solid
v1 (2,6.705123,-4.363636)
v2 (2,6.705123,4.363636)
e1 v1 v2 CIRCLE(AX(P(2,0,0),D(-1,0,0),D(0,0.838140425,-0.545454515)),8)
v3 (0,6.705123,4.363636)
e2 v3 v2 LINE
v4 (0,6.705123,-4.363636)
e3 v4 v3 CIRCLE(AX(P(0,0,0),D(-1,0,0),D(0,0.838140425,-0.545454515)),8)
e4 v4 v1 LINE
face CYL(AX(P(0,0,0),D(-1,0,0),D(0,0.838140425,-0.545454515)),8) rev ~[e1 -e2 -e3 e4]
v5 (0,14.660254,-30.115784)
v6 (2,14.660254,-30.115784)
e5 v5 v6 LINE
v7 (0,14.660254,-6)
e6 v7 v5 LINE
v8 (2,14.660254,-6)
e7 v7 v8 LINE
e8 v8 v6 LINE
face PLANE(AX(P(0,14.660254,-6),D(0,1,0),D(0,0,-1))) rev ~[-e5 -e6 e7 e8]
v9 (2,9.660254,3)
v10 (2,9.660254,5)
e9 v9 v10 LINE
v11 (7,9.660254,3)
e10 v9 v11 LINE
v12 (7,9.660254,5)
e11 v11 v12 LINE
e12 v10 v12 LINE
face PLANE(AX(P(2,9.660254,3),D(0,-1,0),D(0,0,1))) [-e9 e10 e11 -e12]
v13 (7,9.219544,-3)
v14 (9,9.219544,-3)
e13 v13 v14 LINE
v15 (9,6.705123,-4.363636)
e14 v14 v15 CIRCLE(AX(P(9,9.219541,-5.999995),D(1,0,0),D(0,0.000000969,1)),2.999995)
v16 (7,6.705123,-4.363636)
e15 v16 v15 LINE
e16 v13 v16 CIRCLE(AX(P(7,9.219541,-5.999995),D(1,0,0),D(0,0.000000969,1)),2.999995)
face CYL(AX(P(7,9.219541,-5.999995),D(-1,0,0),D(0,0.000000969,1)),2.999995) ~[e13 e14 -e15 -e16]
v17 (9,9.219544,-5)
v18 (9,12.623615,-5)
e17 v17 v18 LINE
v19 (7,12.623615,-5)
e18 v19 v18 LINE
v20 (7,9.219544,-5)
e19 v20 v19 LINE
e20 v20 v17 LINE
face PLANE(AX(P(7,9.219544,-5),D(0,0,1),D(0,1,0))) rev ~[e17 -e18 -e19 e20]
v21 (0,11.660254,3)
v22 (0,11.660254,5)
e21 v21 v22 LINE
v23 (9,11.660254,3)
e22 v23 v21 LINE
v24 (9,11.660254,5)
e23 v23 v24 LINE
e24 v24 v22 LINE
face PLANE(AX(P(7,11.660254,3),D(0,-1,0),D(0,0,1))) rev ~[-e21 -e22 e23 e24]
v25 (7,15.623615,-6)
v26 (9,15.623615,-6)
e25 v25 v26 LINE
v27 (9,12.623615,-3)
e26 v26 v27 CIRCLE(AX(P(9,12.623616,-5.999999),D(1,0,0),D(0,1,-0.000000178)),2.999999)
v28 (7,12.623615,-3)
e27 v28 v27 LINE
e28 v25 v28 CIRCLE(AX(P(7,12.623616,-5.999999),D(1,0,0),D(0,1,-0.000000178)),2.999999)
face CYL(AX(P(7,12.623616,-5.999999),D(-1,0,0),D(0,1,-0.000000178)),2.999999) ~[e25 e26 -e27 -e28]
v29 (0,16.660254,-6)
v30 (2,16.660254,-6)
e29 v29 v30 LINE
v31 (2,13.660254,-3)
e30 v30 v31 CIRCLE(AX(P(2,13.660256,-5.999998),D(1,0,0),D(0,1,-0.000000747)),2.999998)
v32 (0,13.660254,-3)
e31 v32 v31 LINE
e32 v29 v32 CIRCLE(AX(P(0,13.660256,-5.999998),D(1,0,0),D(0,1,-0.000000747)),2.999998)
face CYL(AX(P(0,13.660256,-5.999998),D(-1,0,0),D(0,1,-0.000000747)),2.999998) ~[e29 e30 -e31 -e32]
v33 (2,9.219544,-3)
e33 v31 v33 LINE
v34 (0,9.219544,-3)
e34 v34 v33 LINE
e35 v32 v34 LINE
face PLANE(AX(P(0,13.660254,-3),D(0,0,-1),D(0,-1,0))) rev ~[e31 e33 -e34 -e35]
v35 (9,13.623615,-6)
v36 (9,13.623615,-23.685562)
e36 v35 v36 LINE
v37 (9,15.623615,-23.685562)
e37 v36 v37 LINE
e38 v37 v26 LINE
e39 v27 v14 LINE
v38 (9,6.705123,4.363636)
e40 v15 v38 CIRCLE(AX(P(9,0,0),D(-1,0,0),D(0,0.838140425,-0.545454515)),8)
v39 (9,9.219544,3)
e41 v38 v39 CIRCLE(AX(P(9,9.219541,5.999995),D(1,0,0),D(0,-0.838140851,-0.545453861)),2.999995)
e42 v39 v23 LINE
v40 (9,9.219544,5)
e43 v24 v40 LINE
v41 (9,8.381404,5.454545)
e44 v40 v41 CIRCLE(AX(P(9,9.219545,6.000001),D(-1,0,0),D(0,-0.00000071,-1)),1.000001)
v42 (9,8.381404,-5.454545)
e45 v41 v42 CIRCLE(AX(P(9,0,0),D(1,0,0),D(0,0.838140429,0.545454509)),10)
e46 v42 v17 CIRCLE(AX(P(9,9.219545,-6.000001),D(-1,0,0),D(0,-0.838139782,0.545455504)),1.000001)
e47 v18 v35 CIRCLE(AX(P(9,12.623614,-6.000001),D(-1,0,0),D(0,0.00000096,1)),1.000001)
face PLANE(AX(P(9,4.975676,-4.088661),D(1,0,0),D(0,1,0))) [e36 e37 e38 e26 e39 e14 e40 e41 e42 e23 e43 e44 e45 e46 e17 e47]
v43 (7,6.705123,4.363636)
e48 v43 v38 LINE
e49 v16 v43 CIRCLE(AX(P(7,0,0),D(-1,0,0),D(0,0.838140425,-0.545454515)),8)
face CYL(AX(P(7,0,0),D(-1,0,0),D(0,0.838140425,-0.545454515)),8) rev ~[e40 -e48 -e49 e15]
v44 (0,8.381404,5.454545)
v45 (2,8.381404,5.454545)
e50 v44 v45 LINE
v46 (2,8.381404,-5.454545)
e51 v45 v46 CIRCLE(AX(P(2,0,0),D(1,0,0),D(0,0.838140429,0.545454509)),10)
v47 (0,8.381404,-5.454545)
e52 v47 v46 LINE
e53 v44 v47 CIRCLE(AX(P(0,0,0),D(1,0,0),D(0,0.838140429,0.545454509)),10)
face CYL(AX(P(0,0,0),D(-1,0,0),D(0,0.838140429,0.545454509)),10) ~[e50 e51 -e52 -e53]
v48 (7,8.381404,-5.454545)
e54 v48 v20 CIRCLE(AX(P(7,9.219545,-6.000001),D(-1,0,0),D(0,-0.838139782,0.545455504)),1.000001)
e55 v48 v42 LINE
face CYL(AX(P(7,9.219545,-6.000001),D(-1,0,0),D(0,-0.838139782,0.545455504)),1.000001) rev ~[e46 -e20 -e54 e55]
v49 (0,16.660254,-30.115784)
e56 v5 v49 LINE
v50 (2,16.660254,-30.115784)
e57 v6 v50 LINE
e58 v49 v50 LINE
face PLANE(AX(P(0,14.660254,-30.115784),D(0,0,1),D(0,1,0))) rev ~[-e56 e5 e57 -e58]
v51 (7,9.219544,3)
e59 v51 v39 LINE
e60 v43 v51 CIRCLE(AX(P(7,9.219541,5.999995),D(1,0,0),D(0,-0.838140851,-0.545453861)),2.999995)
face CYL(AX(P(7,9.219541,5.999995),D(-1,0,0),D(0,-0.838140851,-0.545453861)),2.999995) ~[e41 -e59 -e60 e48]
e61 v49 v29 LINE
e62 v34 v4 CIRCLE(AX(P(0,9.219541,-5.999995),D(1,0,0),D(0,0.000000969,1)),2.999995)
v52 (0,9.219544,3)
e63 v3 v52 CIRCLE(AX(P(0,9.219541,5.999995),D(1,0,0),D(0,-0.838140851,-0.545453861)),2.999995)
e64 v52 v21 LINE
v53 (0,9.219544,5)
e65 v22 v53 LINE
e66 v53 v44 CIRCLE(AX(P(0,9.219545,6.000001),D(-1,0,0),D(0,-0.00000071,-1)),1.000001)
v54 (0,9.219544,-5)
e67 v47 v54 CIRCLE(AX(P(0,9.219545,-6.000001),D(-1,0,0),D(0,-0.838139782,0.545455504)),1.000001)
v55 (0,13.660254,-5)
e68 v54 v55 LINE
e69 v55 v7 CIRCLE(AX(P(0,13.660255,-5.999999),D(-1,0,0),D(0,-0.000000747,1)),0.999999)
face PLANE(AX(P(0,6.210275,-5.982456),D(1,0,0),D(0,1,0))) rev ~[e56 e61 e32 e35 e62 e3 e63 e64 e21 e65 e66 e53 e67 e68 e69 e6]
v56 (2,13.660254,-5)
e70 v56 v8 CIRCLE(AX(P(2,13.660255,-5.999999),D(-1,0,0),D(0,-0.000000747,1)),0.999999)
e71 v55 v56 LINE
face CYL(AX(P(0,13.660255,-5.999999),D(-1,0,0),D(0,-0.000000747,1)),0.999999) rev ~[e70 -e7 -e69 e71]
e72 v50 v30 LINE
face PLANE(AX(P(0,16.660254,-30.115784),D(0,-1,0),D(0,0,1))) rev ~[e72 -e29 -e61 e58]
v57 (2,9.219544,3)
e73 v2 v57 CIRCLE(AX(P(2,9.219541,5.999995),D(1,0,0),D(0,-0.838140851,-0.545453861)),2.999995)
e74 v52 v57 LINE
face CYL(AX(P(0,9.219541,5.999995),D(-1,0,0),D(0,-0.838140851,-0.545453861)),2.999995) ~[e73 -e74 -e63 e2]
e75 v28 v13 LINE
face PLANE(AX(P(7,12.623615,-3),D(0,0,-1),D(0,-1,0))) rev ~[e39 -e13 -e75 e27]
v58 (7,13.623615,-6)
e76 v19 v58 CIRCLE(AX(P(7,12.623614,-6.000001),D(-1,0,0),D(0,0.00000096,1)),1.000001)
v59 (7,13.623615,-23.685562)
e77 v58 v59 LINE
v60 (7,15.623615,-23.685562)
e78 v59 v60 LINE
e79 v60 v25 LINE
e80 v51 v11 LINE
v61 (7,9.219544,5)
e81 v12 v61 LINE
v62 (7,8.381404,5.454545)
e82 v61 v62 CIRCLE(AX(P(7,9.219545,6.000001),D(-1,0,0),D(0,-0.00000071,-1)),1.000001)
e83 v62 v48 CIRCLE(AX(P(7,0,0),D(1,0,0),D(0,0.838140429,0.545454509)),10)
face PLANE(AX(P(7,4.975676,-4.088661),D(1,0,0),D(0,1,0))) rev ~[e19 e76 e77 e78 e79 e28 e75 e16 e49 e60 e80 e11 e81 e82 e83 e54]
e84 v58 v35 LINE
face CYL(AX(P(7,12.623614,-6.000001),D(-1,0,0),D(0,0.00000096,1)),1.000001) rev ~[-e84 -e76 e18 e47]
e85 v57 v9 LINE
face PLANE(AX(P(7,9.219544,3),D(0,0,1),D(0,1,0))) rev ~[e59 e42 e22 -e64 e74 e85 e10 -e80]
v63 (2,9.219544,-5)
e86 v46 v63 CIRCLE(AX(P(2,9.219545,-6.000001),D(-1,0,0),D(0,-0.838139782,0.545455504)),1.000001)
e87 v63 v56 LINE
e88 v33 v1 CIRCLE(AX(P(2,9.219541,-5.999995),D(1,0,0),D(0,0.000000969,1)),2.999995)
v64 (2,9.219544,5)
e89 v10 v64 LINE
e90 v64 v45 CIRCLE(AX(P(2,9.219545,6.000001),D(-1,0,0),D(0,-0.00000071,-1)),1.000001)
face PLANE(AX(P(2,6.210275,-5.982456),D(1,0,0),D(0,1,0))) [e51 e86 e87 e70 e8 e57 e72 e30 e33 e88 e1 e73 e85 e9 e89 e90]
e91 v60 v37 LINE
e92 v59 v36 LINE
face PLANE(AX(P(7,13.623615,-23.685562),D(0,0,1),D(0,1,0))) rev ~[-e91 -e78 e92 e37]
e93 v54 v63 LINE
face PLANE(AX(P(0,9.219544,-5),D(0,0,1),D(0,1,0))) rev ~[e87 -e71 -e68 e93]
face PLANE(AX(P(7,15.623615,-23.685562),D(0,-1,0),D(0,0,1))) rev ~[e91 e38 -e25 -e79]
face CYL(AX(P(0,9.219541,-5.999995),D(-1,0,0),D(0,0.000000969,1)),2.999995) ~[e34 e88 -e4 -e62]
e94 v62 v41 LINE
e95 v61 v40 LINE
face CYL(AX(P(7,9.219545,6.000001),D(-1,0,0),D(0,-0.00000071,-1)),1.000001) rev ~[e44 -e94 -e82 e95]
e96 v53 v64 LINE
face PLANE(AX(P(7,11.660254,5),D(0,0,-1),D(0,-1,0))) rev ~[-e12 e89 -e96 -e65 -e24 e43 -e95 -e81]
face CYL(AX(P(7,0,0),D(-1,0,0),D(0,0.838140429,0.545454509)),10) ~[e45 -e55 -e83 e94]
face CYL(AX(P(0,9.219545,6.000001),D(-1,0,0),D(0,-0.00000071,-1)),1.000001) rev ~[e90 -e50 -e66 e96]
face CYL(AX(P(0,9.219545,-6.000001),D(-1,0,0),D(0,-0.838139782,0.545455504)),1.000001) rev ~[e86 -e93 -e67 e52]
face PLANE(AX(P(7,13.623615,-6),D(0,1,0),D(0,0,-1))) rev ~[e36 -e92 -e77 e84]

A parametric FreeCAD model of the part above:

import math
import FreeCAD as App
import Part
import Sketcher

V = App.Vector
Q = App.Units.Quantity

doc = App.newDocument("Part")
body = doc.addObject("PartDesign::Body", "Body")

sketch1 = doc.addObject("Sketcher::SketchObject", "Sketch")
body.addObject(sketch1)
sketch1.AttachmentSupport = (doc.YZ_Plane, [""])
sketch1.MapMode = "FlatFace"
sketch1.addGeometry(Part.ArcOfCircle(Part.Circle(V(9.2, 6, 0), V(0, 0, 1), 1), math.radians(-147), math.radians(-90)), False)
sketch1.addGeometry(Part.ArcOfCircle(Part.Circle(V(0, 0, 0), V(0, 0, 1), 10), math.radians(33), math.radians(327)), False)
sketch1.addGeometry(Part.ArcOfCircle(Part.Circle(V(9.2, -6, 0), V(0, 0, 1), 1), math.radians(90), math.radians(147)), False)
sketch1.addGeometry(Part.LineSegment(V(9.2, -5, 0), V(13.7, -5, 0)), False)
sketch1.addGeometry(Part.ArcOfCircle(Part.Circle(V(13.7, -6, 0), V(0, 0, 1), 1), math.radians(0), math.radians(90)), False)
sketch1.addGeometry(Part.LineSegment(V(14.7, -6, 0), V(14.7, -30.1, 0)), False)
sketch1.addGeometry(Part.LineSegment(V(14.7, -30.1, 0), V(16.7, -30.1, 0)), False)
sketch1.addGeometry(Part.LineSegment(V(16.7, -30.1, 0), V(16.7, -6, 0)), False)
sketch1.addGeometry(Part.ArcOfCircle(Part.Circle(V(13.7, -6, 0), V(0, 0, 1), 3), math.radians(0), math.radians(90)), False)
sketch1.addGeometry(Part.LineSegment(V(13.7, -3, 0), V(9.2, -3, 0)), False)
sketch1.addGeometry(Part.ArcOfCircle(Part.Circle(V(9.2, -6, 0), V(0, 0, 1), 3), math.radians(90), math.radians(147)), False)
sketch1.addGeometry(Part.ArcOfCircle(Part.Circle(V(0, 0, 0), V(0, 0, 1), 8), math.radians(33), math.radians(327)), False)
sketch1.addGeometry(Part.ArcOfCircle(Part.Circle(V(9.2, 6, 0), V(0, 0, 1), 3), math.radians(-147), math.radians(-90)), False)
sketch1.addGeometry(Part.LineSegment(V(9.2, 3, 0), V(11.7, 3, 0)), False)
sketch1.addGeometry(Part.LineSegment(V(11.7, 3, 0), V(11.7, 5, 0)), False)
sketch1.addGeometry(Part.LineSegment(V(11.7, 5, 0), V(9.2, 5, 0)), False)
sketch1.addConstraint(Sketcher.Constraint("Tangent", 0, 1, 1, 1))
sketch1.addConstraint(Sketcher.Constraint("Tangent", 1, 2, 2, 2))
sketch1.addConstraint(Sketcher.Constraint("Tangent", 2, 1, 3, 1))
sketch1.addConstraint(Sketcher.Constraint("Tangent", 3, 2, 4, 2))
sketch1.addConstraint(Sketcher.Constraint("Tangent", 4, 1, 5, 1))
sketch1.addConstraint(Sketcher.Constraint("Coincident", 5, 2, 6, 1))
sketch1.addConstraint(Sketcher.Constraint("Coincident", 6, 2, 7, 1))
sketch1.addConstraint(Sketcher.Constraint("Tangent", 7, 2, 8, 1))
sketch1.addConstraint(Sketcher.Constraint("Tangent", 8, 2, 9, 1))
sketch1.addConstraint(Sketcher.Constraint("Tangent", 9, 2, 10, 1))
sketch1.addConstraint(Sketcher.Constraint("Tangent", 10, 2, 11, 2))
sketch1.addConstraint(Sketcher.Constraint("Tangent", 11, 1, 12, 1))
sketch1.addConstraint(Sketcher.Constraint("Tangent", 12, 2, 13, 1))
sketch1.addConstraint(Sketcher.Constraint("Coincident", 13, 2, 14, 1))
sketch1.addConstraint(Sketcher.Constraint("Coincident", 14, 2, 15, 1))
sketch1.addConstraint(Sketcher.Constraint("Tangent", 15, 2, 0, 2))
sketch1.addConstraint(Sketcher.Constraint("Horizontal", 3))
sketch1.addConstraint(Sketcher.Constraint("Vertical", 5))
sketch1.addConstraint(Sketcher.Constraint("Horizontal", 6))
sketch1.addConstraint(Sketcher.Constraint("Vertical", 7))
sketch1.addConstraint(Sketcher.Constraint("Horizontal", 9))
sketch1.addConstraint(Sketcher.Constraint("Horizontal", 13))
sketch1.addConstraint(Sketcher.Constraint("Vertical", 14))
sketch1.addConstraint(Sketcher.Constraint("Horizontal", 15))
sketch1.addConstraint(Sketcher.Constraint("Coincident", 1, 3, -1, 1))
sketch1.addConstraint(Sketcher.Constraint("Coincident", 11, 3, -1, 1))
sketch1.addConstraint(Sketcher.Constraint("Coincident", 8, 3, 4, 3))
sketch1.addConstraint(Sketcher.Constraint("Coincident", 10, 3, 2, 3))
sketch1.addConstraint(Sketcher.Constraint("Coincident", 12, 3, 0, 3))
sketch1.addConstraint(Sketcher.Constraint("Equal", 0, 2))
sketch1.addConstraint(Sketcher.Constraint("Equal", 2, 4))
sketch1.addConstraint(Sketcher.Constraint("Vertical", 0, 3, 2, 3))
sketch1.addConstraint(Sketcher.Constraint("Radius", 0, Q("1.000001 mm")))
sketch1.addConstraint(Sketcher.Constraint("Radius", 1, Q("10 mm")))
sketch1.addConstraint(Sketcher.Constraint("Radius", 11, Q("8 mm")))
sketch1.addConstraint(Sketcher.Constraint("DistanceY", -1, 1, 0, 3, Q("6.000001 mm")))
sketch1.addConstraint(Sketcher.Constraint("DistanceX", 3, 1, 3, 2, Q("4.44071 mm")))
sketch1.addConstraint(Sketcher.Constraint("DistanceX", 13, 1, 13, 2, Q("2.44071 mm")))
sketch1.addConstraint(Sketcher.Constraint("DistanceY", 5, 2, 5, 1, Q("24.115784 mm")))
pad1 = doc.addObject("PartDesign::Pad", "Pad")
body.addObject(pad1)
pad1.Profile = sketch1
pad1.Length = 2

sketch2 = doc.addObject("Sketcher::SketchObject", "Sketch001")
body.addObject(sketch2)
sketch2.AttachmentSupport = (doc.YZ_Plane, [""])
sketch2.MapMode = "FlatFace"
sketch2.AttachmentOffset = App.Placement(V(0, 0, 2), App.Rotation())
sketch2.addGeometry(Part.LineSegment(V(9.7, 5, 0), V(9.7, 3, 0)), False)
sketch2.addGeometry(Part.LineSegment(V(9.7, 3, 0), V(11.7, 3, 0)), False)
sketch2.addGeometry(Part.LineSegment(V(11.7, 3, 0), V(11.7, 5, 0)), False)
sketch2.addGeometry(Part.LineSegment(V(11.7, 5, 0), V(9.7, 5, 0)), False)
sketch2.addConstraint(Sketcher.Constraint("Coincident", 0, 2, 1, 1))
sketch2.addConstraint(Sketcher.Constraint("Coincident", 1, 2, 2, 1))
sketch2.addConstraint(Sketcher.Constraint("Coincident", 2, 2, 3, 1))
sketch2.addConstraint(Sketcher.Constraint("Coincident", 3, 2, 0, 1))
sketch2.addConstraint(Sketcher.Constraint("Vertical", 0))
sketch2.addConstraint(Sketcher.Constraint("Horizontal", 1))
sketch2.addConstraint(Sketcher.Constraint("Vertical", 2))
sketch2.addConstraint(Sketcher.Constraint("Horizontal", 3))
sketch2.addConstraint(Sketcher.Constraint("Equal", 3, 0))
sketch2.addConstraint(Sketcher.Constraint("DistanceX", 1, 1, 1, 2, Q("2 mm")))
sketch2.addConstraint(Sketcher.Constraint("DistanceY", -1, 1, 0, 2, Q("3 mm")))
sketch2.addConstraint(Sketcher.Constraint("DistanceX", -1, 1, 0, 2, Q("9.660254 mm")))
pad2 = doc.addObject("PartDesign::Pad", "Pad001")
body.addObject(pad2)
pad2.Profile = sketch2
pad2.Length = 5

sketch3 = doc.addObject("Sketcher::SketchObject", "Sketch002")
body.addObject(sketch3)
sketch3.AttachmentSupport = (doc.YZ_Plane, [""])
sketch3.MapMode = "FlatFace"
sketch3.AttachmentOffset = App.Placement(V(0, 0, 7), App.Rotation())
sketch3.addGeometry(Part.ArcOfCircle(Part.Circle(V(9.2, 6, 0), V(0, 0, 1), 1), math.radians(-147), math.radians(-90)), False)
sketch3.addGeometry(Part.ArcOfCircle(Part.Circle(V(0, 0, 0), V(0, 0, 1), 10), math.radians(33), math.radians(327)), False)
sketch3.addGeometry(Part.ArcOfCircle(Part.Circle(V(9.2, -6, 0), V(0, 0, 1), 1), math.radians(90), math.radians(147)), False)
sketch3.addGeometry(Part.LineSegment(V(9.2, -5, 0), V(12.6, -5, 0)), False)
sketch3.addGeometry(Part.ArcOfCircle(Part.Circle(V(12.6, -6, 0), V(0, 0, 1), 1), math.radians(0), math.radians(90)), False)
sketch3.addGeometry(Part.LineSegment(V(13.6, -6, 0), V(13.6, -23.7, 0)), False)
sketch3.addGeometry(Part.LineSegment(V(13.6, -23.7, 0), V(15.6, -23.7, 0)), False)
sketch3.addGeometry(Part.LineSegment(V(15.6, -23.7, 0), V(15.6, -6, 0)), False)
sketch3.addGeometry(Part.ArcOfCircle(Part.Circle(V(12.6, -6, 0), V(0, 0, 1), 3), math.radians(0), math.radians(90)), False)
sketch3.addGeometry(Part.LineSegment(V(12.6, -3, 0), V(9.2, -3, 0)), False)
sketch3.addGeometry(Part.ArcOfCircle(Part.Circle(V(9.2, -6, 0), V(0, 0, 1), 3), math.radians(90), math.radians(147)), False)
sketch3.addGeometry(Part.ArcOfCircle(Part.Circle(V(0, 0, 0), V(0, 0, 1), 8), math.radians(33), math.radians(327)), False)
sketch3.addGeometry(Part.ArcOfCircle(Part.Circle(V(9.2, 6, 0), V(0, 0, 1), 3), math.radians(-147), math.radians(-90)), False)
sketch3.addGeometry(Part.LineSegment(V(9.2, 3, 0), V(11.7, 3, 0)), False)
sketch3.addGeometry(Part.LineSegment(V(11.7, 3, 0), V(11.7, 5, 0)), False)
sketch3.addGeometry(Part.LineSegment(V(11.7, 5, 0), V(9.2, 5, 0)), False)
sketch3.addConstraint(Sketcher.Constraint("Tangent", 0, 1, 1, 1))
sketch3.addConstraint(Sketcher.Constraint("Tangent", 1, 2, 2, 2))
sketch3.addConstraint(Sketcher.Constraint("Tangent", 2, 1, 3, 1))
sketch3.addConstraint(Sketcher.Constraint("Tangent", 3, 2, 4, 2))
sketch3.addConstraint(Sketcher.Constraint("Tangent", 4, 1, 5, 1))
sketch3.addConstraint(Sketcher.Constraint("Coincident", 5, 2, 6, 1))
sketch3.addConstraint(Sketcher.Constraint("Coincident", 6, 2, 7, 1))
sketch3.addConstraint(Sketcher.Constraint("Tangent", 7, 2, 8, 1))
sketch3.addConstraint(Sketcher.Constraint("Tangent", 8, 2, 9, 1))
sketch3.addConstraint(Sketcher.Constraint("Tangent", 9, 2, 10, 1))
sketch3.addConstraint(Sketcher.Constraint("Tangent", 10, 2, 11, 2))
sketch3.addConstraint(Sketcher.Constraint("Tangent", 11, 1, 12, 1))
sketch3.addConstraint(Sketcher.Constraint("Tangent", 12, 2, 13, 1))
sketch3.addConstraint(Sketcher.Constraint("Coincident", 13, 2, 14, 1))
sketch3.addConstraint(Sketcher.Constraint("Coincident", 14, 2, 15, 1))
sketch3.addConstraint(Sketcher.Constraint("Tangent", 15, 2, 0, 2))
sketch3.addConstraint(Sketcher.Constraint("Horizontal", 3))
sketch3.addConstraint(Sketcher.Constraint("Vertical", 5))
sketch3.addConstraint(Sketcher.Constraint("Horizontal", 6))
sketch3.addConstraint(Sketcher.Constraint("Vertical", 7))
sketch3.addConstraint(Sketcher.Constraint("Horizontal", 9))
sketch3.addConstraint(Sketcher.Constraint("Horizontal", 13))
sketch3.addConstraint(Sketcher.Constraint("Vertical", 14))
sketch3.addConstraint(Sketcher.Constraint("Horizontal", 15))
sketch3.addConstraint(Sketcher.Constraint("Coincident", 1, 3, -1, 1))
sketch3.addConstraint(Sketcher.Constraint("Coincident", 11, 3, -1, 1))
sketch3.addConstraint(Sketcher.Constraint("Coincident", 8, 3, 4, 3))
sketch3.addConstraint(Sketcher.Constraint("Coincident", 10, 3, 2, 3))
sketch3.addConstraint(Sketcher.Constraint("Coincident", 12, 3, 0, 3))
sketch3.addConstraint(Sketcher.Constraint("Equal", 0, 2))
sketch3.addConstraint(Sketcher.Constraint("Equal", 2, 4))
sketch3.addConstraint(Sketcher.Constraint("Vertical", 0, 3, 2, 3))
sketch3.addConstraint(Sketcher.Constraint("Radius", 0, Q("1.000001 mm")))
sketch3.addConstraint(Sketcher.Constraint("Radius", 1, Q("10 mm")))
sketch3.addConstraint(Sketcher.Constraint("Radius", 8, Q("2.999999 mm")))
sketch3.addConstraint(Sketcher.Constraint("DistanceY", -1, 1, 0, 3, Q("6.000001 mm")))
sketch3.addConstraint(Sketcher.Constraint("DistanceX", 3, 1, 3, 2, Q("3.404071 mm")))
sketch3.addConstraint(Sketcher.Constraint("DistanceX", 13, 1, 13, 2, Q("2.44071 mm")))
sketch3.addConstraint(Sketcher.Constraint("DistanceY", 5, 2, 5, 1, Q("17.685562 mm")))
pad3 = doc.addObject("PartDesign::Pad", "Pad002")
body.addObject(pad3)
pad3.Profile = sketch3
pad3.Length = 2

doc.recompute()
